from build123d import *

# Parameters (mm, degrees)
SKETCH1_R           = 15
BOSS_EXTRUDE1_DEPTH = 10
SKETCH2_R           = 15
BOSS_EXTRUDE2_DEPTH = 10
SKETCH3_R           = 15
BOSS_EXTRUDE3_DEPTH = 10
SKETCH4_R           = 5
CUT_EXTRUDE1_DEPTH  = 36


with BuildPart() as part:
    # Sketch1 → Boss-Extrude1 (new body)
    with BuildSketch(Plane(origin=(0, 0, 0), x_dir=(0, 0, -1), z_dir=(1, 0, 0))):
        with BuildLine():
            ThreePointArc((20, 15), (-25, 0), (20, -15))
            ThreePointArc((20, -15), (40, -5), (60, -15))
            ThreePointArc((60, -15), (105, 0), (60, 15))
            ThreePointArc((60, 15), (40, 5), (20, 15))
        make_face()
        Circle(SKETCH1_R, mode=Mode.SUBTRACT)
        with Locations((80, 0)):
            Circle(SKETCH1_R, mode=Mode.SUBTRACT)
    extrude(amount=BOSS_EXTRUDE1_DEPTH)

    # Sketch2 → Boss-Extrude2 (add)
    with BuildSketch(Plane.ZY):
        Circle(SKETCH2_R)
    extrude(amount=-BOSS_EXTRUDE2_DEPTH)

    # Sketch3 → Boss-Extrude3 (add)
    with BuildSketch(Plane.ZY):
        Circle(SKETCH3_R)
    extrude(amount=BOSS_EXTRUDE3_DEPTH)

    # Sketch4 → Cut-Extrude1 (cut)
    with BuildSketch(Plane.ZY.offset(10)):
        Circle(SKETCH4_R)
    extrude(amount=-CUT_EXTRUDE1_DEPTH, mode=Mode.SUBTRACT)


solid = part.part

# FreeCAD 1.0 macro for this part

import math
import FreeCAD as App
import Part
import Sketcher
from FreeCAD import Vector
Q = App.Units.Quantity

doc = App.newDocument("Part")
params = doc.addObject("Spreadsheet::Sheet", "Params")
for row, (alias, value) in enumerate([
    ("sketch1_diameter", "30 mm"),
    ("sketch1_radius", "25 mm"),
    ("pad1_length", "10 mm"),
    ("sketch2_diameter", "30 mm"),
    ("pad2_length", "10 mm"),
    ("sketch3_diameter", "30 mm"),
    ("pad3_length", "10 mm"),
    ("sketch4_diameter", "10 mm"),
    ("pocket1_length", "36 mm"),
], start=1):
    params.set(f"A{row}", alias)
    params.set(f"B{row}", "=" + value)
    params.setAlias(f"B{row}", alias)

body = doc.addObject("PartDesign::Body", "Body")

# Sketch on YZ plane
sketch1 = body.newObject("Sketcher::SketchObject", "Sketch")
sketch1.AttachmentSupport = (doc.getObject("YZ_Plane"), [""])
sketch1.MapMode = "FlatFace"
sketch1.addGeometry([
    Part.ArcOfCircle(Part.Circle(Vector(0, 0, 0), Vector(0, 0, 1), 25), math.radians(-53.130102), math.radians(233.130102)),  # 0
    Part.ArcOfCircle(Part.Circle(Vector(-30, -40, 0), Vector(0, 0, 1), 25), math.radians(-53.130102), math.radians(53.130102)),  # 1
    Part.ArcOfCircle(Part.Circle(Vector(0, -80, 0), Vector(0, 0, 1), 25), math.radians(126.869898), math.radians(413.130102)),  # 2
    Part.ArcOfCircle(Part.Circle(Vector(30, -40, 0), Vector(0, 0, 1), 25), math.radians(126.869898), math.radians(233.130102)),  # 3
    Part.Circle(Vector(0, 0, 0), Vector(0, 0, 1), 15),  # 4
    Part.Circle(Vector(0, -80, 0), Vector(0, 0, 1), 15),  # 5
], False)
sketch1.addConstraint([
    Sketcher.Constraint("Tangent", 0, 2, 1, 2),
    Sketcher.Constraint("Tangent", 1, 1, 2, 1),
    Sketcher.Constraint("Tangent", 2, 2, 3, 2),
    Sketcher.Constraint("Tangent", 3, 1, 0, 1),
    Sketcher.Constraint("Coincident", 0, 3, -1, 1),
    Sketcher.Constraint("Coincident", 4, 3, -1, 1),
    Sketcher.Constraint("Coincident", 5, 3, 2, 3),
    Sketcher.Constraint("Equal", 0, 1),
    Sketcher.Constraint("Equal", 1, 2),
    Sketcher.Constraint("Equal", 2, 3),
    Sketcher.Constraint("Equal", 4, 5),
    Sketcher.Constraint("PointOnObject", 2, 3, -2),
    Sketcher.Constraint("Diameter", 4, Q("30 mm")),
    Sketcher.Constraint("Radius", 0, Q("25 mm")),
    Sketcher.Constraint("DistanceX", 1, 3, -1, 1, Q("30 mm")),
])
sketch1.setExpression("Constraints[12]", "Params.sketch1_diameter")
sketch1.setExpression("Constraints[13]", "Params.sketch1_radius")
pad1 = body.newObject("PartDesign::Pad", "Pad")
pad1.Profile = sketch1
pad1.setExpression("Length", "Params.pad1_length")

# Sketch on YZ plane
sketch2 = body.newObject("Sketcher::SketchObject", "Sketch001")
sketch2.AttachmentSupport = (doc.getObject("YZ_Plane"), [""])
sketch2.MapMode = "FlatFace"
sketch2.addGeometry(Part.Circle(Vector(0, 0, 0), Vector(0, 0, 1), 15), False)
sketch2.addConstraint([
    Sketcher.Constraint("Coincident", 0, 3, -1, 1),
    Sketcher.Constraint("Diameter", 0, Q("30 mm")),
])
sketch2.setExpression("Constraints[1]", "Params.sketch2_diameter")
pad2 = body.newObject("PartDesign::Pad", "Pad001")
pad2.Profile = sketch2
pad2.setExpression("Length", "Params.pad2_length")

# Sketch on YZ plane
sketch3 = body.newObject("Sketcher::SketchObject", "Sketch002")
sketch3.AttachmentSupport = (doc.getObject("YZ_Plane"), [""])
sketch3.MapMode = "FlatFace"
sketch3.addGeometry(Part.Circle(Vector(0, 0, 0), Vector(0, 0, 1), 15), False)
sketch3.addConstraint([
    Sketcher.Constraint("Coincident", 0, 3, -1, 1),
    Sketcher.Constraint("Diameter", 0, Q("30 mm")),
])
sketch3.setExpression("Constraints[1]", "Params.sketch3_diameter")
pad3 = body.newObject("PartDesign::Pad", "Pad002")
pad3.Profile = sketch3
pad3.setExpression("Length", "Params.pad3_length")
pad3.Reversed = True

# Sketch on YZ plane
sketch4 = body.newObject("Sketcher::SketchObject", "Sketch003")
sketch4.AttachmentSupport = (doc.getObject("YZ_Plane"), [""])
sketch4.MapMode = "FlatFace"
sketch4.AttachmentOffset = App.Placement(Vector(0, 0, -10), App.Rotation())
sketch4.addGeometry(Part.Circle(Vector(0, 0, 0), Vector(0, 0, 1), 5), False)
sketch4.addConstraint([
    Sketcher.Constraint("Coincident", 0, 3, -1, 1),
    Sketcher.Constraint("Diameter", 0, Q("10 mm")),
])
sketch4.setExpression("Constraints[1]", "Params.sketch4_diameter")
pocket1 = body.newObject("PartDesign::Pocket", "Pocket")
pocket1.Profile = sketch4
pocket1.setExpression("Length", "Params.pocket1_length")
pocket1.Reversed = True

doc.recompute()
